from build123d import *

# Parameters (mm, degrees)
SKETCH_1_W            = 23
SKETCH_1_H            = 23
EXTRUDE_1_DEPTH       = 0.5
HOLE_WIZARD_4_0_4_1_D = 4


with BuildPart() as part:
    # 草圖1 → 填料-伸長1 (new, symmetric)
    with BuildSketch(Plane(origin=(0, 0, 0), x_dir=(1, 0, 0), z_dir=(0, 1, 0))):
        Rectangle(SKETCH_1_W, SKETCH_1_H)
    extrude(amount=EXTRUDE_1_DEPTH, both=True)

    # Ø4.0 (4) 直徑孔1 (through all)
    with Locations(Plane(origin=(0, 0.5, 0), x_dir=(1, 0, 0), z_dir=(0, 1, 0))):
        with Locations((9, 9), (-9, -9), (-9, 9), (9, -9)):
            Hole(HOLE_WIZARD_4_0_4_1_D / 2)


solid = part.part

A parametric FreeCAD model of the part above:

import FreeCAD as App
import Part
import Sketcher
Q = App.Units.Quantity


def add_polygon(sketch, points):
    """Adds a closed chain of lines whose ends are joined by coincident constraints."""
    first, n = sketch.GeometryCount, len(points)
    for a, b in zip(points, points[1:] + points[:1]):
        sketch.addGeometry(Part.LineSegment(App.Vector(*a, 0), App.Vector(*b, 0)), False)
    for i in range(n):
        sketch.addConstraint(Sketcher.Constraint("Coincident", first + i, 2, first + (i + 1) % n, 1))

doc = App.newDocument("Part")
body = doc.addObject("PartDesign::Body", "Body")

# Sketch on XZ plane
sketch1 = body.newObject("Sketcher::SketchObject", "Sketch")
sketch1.AttachmentSupport = (doc.getObject("XZ_Plane"), [""])
sketch1.MapMode = "FlatFace"
add_polygon(sketch1, [(-12, -12), (-12, 12), (12, 12), (12, -12)])  # lines 0-3
sketch1.addConstraint([
    Sketcher.Constraint("Vertical", 0),
    Sketcher.Constraint("Horizontal", 1),
    Sketcher.Constraint("Vertical", 2),
    Sketcher.Constraint("Horizontal", 3),
    Sketcher.Constraint("Symmetric", 0, 2, 2, 2, -1, 1),
    Sketcher.Constraint("Equal", 3, 0),
    Sketcher.Constraint("DistanceX", 1, 1, 1, 2, Q("23 mm")),
])
pad1 = body.newObject("PartDesign::Pad", "Pad")
pad1.Profile = sketch1
pad1.Length = 1
pad1.Midplane = True

# Sketch on XZ plane
sketch2 = body.newObject("Sketcher::SketchObject", "Sketch001")
sketch2.AttachmentSupport = (doc.getObject("XZ_Plane"), [""])
sketch2.MapMode = "FlatFace"
sketch2.AttachmentOffset = App.Placement(App.Vector(0, 0, -0.5), App.Rotation())
sketch2.addGeometry([
    Part.Circle(App.Vector(9, -9, 0), App.Vector(0, 0, 1), 2),
    Part.Circle(App.Vector(-9, 9, 0), App.Vector(0, 0, 1), 2),
    Part.Circle(App.Vector(-9, -9, 0), App.Vector(0, 0, 1), 2),
    Part.Circle(App.Vector(9, 9, 0), App.Vector(0, 0, 1), 2),
], False)
sketch2.addConstraint([
    Sketcher.Constraint("Equal", 0, 1),
    Sketcher.Constraint("Equal", 1, 2),
    Sketcher.Constraint("Equal", 2, 3),
    Sketcher.Constraint("Symmetric", 0, 3, 1, 3, -1, 1),
    Sketcher.Constraint("Symmetric", 2, 3, 3, 3, -1, 1),
    Sketcher.Constraint("Symmetric", 0, 3, 2, 3, -2),
    Sketcher.Constraint("Diameter", 0, Q("4 mm")),
    Sketcher.Constraint("DistanceX", -1, 1, 0, 3, Q("9 mm")),
    Sketcher.Constraint("DistanceY", 0, 3, -1, 1, Q("9 mm")),
])
doc.recompute()
hole = body.newObject("PartDesign::Hole", "Hole")
hole.Profile = sketch2
hole.ThreadType = "None"
hole.Diameter = 4
hole.DepthType = "ThroughAll"
hole.Reversed = True

doc.recompute()
